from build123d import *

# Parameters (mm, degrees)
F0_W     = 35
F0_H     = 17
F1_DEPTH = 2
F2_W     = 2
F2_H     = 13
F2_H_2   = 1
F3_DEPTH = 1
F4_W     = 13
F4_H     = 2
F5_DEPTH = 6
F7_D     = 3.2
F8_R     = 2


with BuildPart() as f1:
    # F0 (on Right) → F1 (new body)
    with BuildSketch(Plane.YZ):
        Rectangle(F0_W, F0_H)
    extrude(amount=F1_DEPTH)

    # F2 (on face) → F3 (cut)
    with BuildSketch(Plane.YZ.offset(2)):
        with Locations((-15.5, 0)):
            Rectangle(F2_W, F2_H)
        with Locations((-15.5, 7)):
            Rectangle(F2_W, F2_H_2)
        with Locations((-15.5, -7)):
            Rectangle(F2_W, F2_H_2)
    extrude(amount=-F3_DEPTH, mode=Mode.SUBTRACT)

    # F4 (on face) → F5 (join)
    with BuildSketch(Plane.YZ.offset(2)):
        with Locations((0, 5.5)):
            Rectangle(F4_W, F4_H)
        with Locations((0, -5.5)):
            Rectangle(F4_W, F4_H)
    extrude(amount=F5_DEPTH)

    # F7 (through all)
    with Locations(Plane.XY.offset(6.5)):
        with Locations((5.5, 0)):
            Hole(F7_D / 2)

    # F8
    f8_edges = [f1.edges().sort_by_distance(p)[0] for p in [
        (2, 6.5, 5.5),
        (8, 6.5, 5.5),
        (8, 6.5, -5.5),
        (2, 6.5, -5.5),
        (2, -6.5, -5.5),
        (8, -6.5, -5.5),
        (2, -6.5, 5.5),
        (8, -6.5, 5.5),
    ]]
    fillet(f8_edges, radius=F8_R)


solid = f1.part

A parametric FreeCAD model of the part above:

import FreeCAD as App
import Part
import Sketcher

V = App.Vector
Q = App.Units.Quantity


def edges_at(feature, points):
    """Names of the edges that pass closest to the given points."""
    edges = feature.Shape.Edges
    near = lambda p: min(range(len(edges)), key=lambda i: edges[i].distToShape(Part.Vertex(*p))[0])
    return sorted({f"Edge{near(p) + 1}" for p in points})

doc = App.newDocument("Part")
body = doc.addObject("PartDesign::Body", "Body")

sketch1 = body.newObject("Sketcher::SketchObject", "Sketch")
sketch1.AttachmentSupport = (doc.getObject("YZ_Plane"), [""])
sketch1.MapMode = "FlatFace"
sketch1.addGeometry([
    Part.LineSegment(V(-17.5, 8.5, 0), V(-17.5, -8.5, 0)),
    Part.LineSegment(V(-17.5, -8.5, 0), V(17.5, -8.5, 0)),
    Part.LineSegment(V(17.5, -8.5, 0), V(17.5, 8.5, 0)),
    Part.LineSegment(V(17.5, 8.5, 0), V(-17.5, 8.5, 0)),
], False)
sketch1.addConstraint([
    Sketcher.Constraint("Coincident", 0, 2, 1, 1),
    Sketcher.Constraint("Coincident", 1, 2, 2, 1),
    Sketcher.Constraint("Coincident", 2, 2, 3, 1),
    Sketcher.Constraint("Coincident", 3, 2, 0, 1),
    Sketcher.Constraint("Vertical", 0),
    Sketcher.Constraint("Horizontal", 1),
    Sketcher.Constraint("Vertical", 2),
    Sketcher.Constraint("Horizontal", 3),
    Sketcher.Constraint("Symmetric", 0, 2, 2, 2, -1, 1),
    Sketcher.Constraint("DistanceX", 1, 1, 1, 2, Q("35 mm")),
    Sketcher.Constraint("DistanceY", 0, 2, 0, 1, Q("17 mm")),
])
pad1 = body.newObject("PartDesign::Pad", "Pad")
pad1.Profile = sketch1
pad1.Length = 2

sketch2 = body.newObject("Sketcher::SketchObject", "Sketch001")
sketch2.AttachmentSupport = (doc.getObject("YZ_Plane"), [""])
sketch2.MapMode = "FlatFace"
sketch2.AttachmentOffset = App.Placement(V(0, 0, 2), App.Rotation())
sketch2.addGeometry([
    Part.LineSegment(V(-14.5, 7.5, 0), V(-16.5, 7.5, 0)),
    Part.LineSegment(V(-16.5, 7.5, 0), V(-16.5, -7.5, 0)),
    Part.LineSegment(V(-16.5, -7.5, 0), V(-14.5, -7.5, 0)),
    Part.LineSegment(V(-14.5, -7.5, 0), V(-14.5, 7.5, 0)),
], False)
sketch2.addConstraint([
    Sketcher.Constraint("Coincident", 0, 2, 1, 1),
    Sketcher.Constraint("Coincident", 1, 2, 2, 1),
    Sketcher.Constraint("Coincident", 2, 2, 3, 1),
    Sketcher.Constraint("Coincident", 3, 2, 0, 1),
    Sketcher.Constraint("Horizontal", 0),
    Sketcher.Constraint("Vertical", 1),
    Sketcher.Constraint("Horizontal", 2),
    Sketcher.Constraint("Vertical", 3),
    Sketcher.Constraint("DistanceX", 0, 2, 0, 1, Q("2 mm")),
    Sketcher.Constraint("DistanceY", 1, 2, 1, 1, Q("15 mm")),
    Sketcher.Constraint("DistanceX", 0, 2, -1, 1, Q("16.5 mm")),
    Sketcher.Constraint("DistanceY", -1, 1, 0, 2, Q("7.5 mm")),
])
pocket1 = body.newObject("PartDesign::Pocket", "Pocket")
pocket1.Profile = sketch2
pocket1.Length = 1

sketch3 = body.newObject("Sketcher::SketchObject", "Sketch002")
sketch3.AttachmentSupport = (doc.getObject("YZ_Plane"), [""])
sketch3.MapMode = "FlatFace"
sketch3.AttachmentOffset = App.Placement(V(0, 0, 2), App.Rotation())
sketch3.addGeometry([
    Part.LineSegment(V(-6.5, 6.5, 0), V(-6.5, 4.5, 0)),
    Part.LineSegment(V(-6.5, 4.5, 0), V(6.5, 4.5, 0)),
    Part.LineSegment(V(6.5, 4.5, 0), V(6.5, 6.5, 0)),
    Part.LineSegment(V(6.5, 6.5, 0), V(-6.5, 6.5, 0)),
    Part.LineSegment(V(-6.5, -4.5, 0), V(-6.5, -6.5, 0)),
    Part.LineSegment(V(-6.5, -6.5, 0), V(6.5, -6.5, 0)),
    Part.LineSegment(V(6.5, -6.5, 0), V(6.5, -4.5, 0)),
    Part.LineSegment(V(6.5, -4.5, 0), V(-6.5, -4.5, 0)),
], False)
sketch3.addConstraint([
    Sketcher.Constraint("Coincident", 0, 2, 1, 1),
    Sketcher.Constraint("Coincident", 1, 2, 2, 1),
    Sketcher.Constraint("Coincident", 2, 2, 3, 1),
    Sketcher.Constraint("Coincident", 3, 2, 0, 1),
    Sketcher.Constraint("Coincident", 4, 2, 5, 1),
    Sketcher.Constraint("Coincident", 5, 2, 6, 1),
    Sketcher.Constraint("Coincident", 6, 2, 7, 1),
    Sketcher.Constraint("Coincident", 7, 2, 4, 1),
    Sketcher.Constraint("Vertical", 0),
    Sketcher.Constraint("Horizontal", 1),
    Sketcher.Constraint("Vertical", 2),
    Sketcher.Constraint("Horizontal", 3),
    Sketcher.Constraint("Vertical", 4),
    Sketcher.Constraint("Horizontal", 5),
    Sketcher.Constraint("Vertical", 6),
    Sketcher.Constraint("Horizontal", 7),
    Sketcher.Constraint("Symmetric", 2, 2, 4, 2, -1, 1),
    Sketcher.Constraint("Symmetric", 0, 2, 6, 2, -1, 1),
    Sketcher.Constraint("Vertical", 3, 2, 4, 2),
    Sketcher.Constraint("DistanceX", 1, 1, 1, 2, Q("13 mm")),
    Sketcher.Constraint("DistanceY", 0, 2, 0, 1, Q("2 mm")),
    Sketcher.Constraint("DistanceY", 4, 2, 0, 2, Q("11 mm")),
])
pad2 = body.newObject("PartDesign::Pad", "Pad001")
pad2.Profile = sketch3
pad2.Length = 6

sketch4 = body.newObject("Sketcher::SketchObject", "Sketch003")
sketch4.AttachmentSupport = (doc.getObject("XY_Plane"), [""])
sketch4.MapMode = "FlatFace"
sketch4.AttachmentOffset = App.Placement(V(0, 0, 6.5), App.Rotation())
sketch4.addGeometry(Part.Circle(V(5.5, 0, 0), V(0, 0, 1), 1.6), False)
sketch4.addConstraint([
    Sketcher.Constraint("PointOnObject", 0, 3, -1),
    Sketcher.Constraint("Diameter", 0, Q("3.2 mm")),
    Sketcher.Constraint("DistanceX", -1, 1, 0, 3, Q("5.5 mm")),
])
doc.recompute()
hole = body.newObject("PartDesign::Hole", "Hole")
hole.Profile = sketch4
hole.ThreadType = "None"
hole.Diameter = 3.2
hole.DepthType = "ThroughAll"
doc.recompute()

fillet = body.newObject("PartDesign::Fillet", "Fillet")
fillet.Base = (hole, edges_at(hole, [
    (2, 6.5, 5.5),
    (8, 6.5, 5.5),
    (8, 6.5, -5.5),
    (2, 6.5, -5.5),
    (2, -6.5, -5.5),
    (8, -6.5, -5.5),
    (2, -6.5, 5.5),
    (8, -6.5, 5.5),
]))
fillet.Radius = 2

doc.recompute()
